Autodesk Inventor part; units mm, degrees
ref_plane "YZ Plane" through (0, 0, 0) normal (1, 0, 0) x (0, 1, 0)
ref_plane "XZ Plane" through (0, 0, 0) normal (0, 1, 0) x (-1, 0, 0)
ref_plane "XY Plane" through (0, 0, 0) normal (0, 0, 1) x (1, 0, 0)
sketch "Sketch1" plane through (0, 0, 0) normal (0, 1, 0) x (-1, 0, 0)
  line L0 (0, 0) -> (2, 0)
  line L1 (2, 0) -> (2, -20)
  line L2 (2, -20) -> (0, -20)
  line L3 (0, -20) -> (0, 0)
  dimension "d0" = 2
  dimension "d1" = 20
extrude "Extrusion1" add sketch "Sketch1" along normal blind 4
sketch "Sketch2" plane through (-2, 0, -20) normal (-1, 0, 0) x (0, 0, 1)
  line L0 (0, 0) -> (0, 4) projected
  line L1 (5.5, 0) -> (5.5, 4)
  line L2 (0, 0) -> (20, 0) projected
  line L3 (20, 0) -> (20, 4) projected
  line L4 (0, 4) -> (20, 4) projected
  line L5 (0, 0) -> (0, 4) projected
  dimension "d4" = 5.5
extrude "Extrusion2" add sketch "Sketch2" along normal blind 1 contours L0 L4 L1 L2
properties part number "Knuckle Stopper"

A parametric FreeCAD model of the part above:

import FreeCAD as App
import Part
import Sketcher


def add_polygon(sketch, points):
    """Adds a closed chain of lines whose ends are joined by coincident constraints."""
    first, n = sketch.GeometryCount, len(points)
    for a, b in zip(points, points[1:] + points[:1]):
        sketch.addGeometry(Part.LineSegment(App.Vector(*a, 0), App.Vector(*b, 0)), False)
    for i in range(n):
        sketch.addConstraint(Sketcher.Constraint("Coincident", first + i, 2, first + (i + 1) % n, 1))

doc = App.newDocument("Part")
body = doc.addObject("PartDesign::Body", "Body")

sketch1 = body.newObject("Sketcher::SketchObject", "Sketch")
sketch1.AttachmentSupport = (doc.getObject("XZ_Plane"), [""])
sketch1.MapMode = "FlatFace"
add_polygon(sketch1, [(-2, 0), (0, 0), (0, -20), (-2, -20)])
sketch1.addConstraint([
    Sketcher.Constraint("Horizontal", 0),
    Sketcher.Constraint("Vertical", 1),
    Sketcher.Constraint("Horizontal", 2),
    Sketcher.Constraint("Vertical", 3),
    Sketcher.Constraint("Coincident", 0, 2, -1, 1),
    Sketcher.Constraint("DistanceX", 0, 1, 0, 2, 2.0),
    Sketcher.Constraint("DistanceY", 1, 2, 1, 1, 20.0),
])
pad1 = body.newObject("PartDesign::Pad", "Pad")
pad1.Profile = sketch1
pad1.Length = 4
pad1.Reversed = True

sketch2 = body.newObject("Sketcher::SketchObject", "Sketch001")
sketch2.AttachmentSupport = (doc.getObject("YZ_Plane"), [""])
sketch2.MapMode = "FlatFace"
sketch2.AttachmentOffset = App.Placement(App.Vector(0, 0, -2), App.Rotation())
add_polygon(sketch2, [(4, -20), (0, -20), (0, -14.5), (4, -14.5)])
sketch2.addConstraint([
    Sketcher.Constraint("Horizontal", 0),
    Sketcher.Constraint("Vertical", 1),
    Sketcher.Constraint("Horizontal", 2),
    Sketcher.Constraint("Vertical", 3),
    Sketcher.Constraint("PointOnObject", 0, 2, -2),
    Sketcher.Constraint("DistanceY", 1, 1, 1, 2, 5.5),
    Sketcher.Constraint("DistanceX", 0, 2, 0, 1, 4.0),
    Sketcher.Constraint("DistanceY", 0, 2, -1, 1, 20.0),
])
pad2 = body.newObject("PartDesign::Pad", "Pad001")
pad2.Profile = sketch2
pad2.Length = 1
pad2.Reversed = True

doc.recompute()
